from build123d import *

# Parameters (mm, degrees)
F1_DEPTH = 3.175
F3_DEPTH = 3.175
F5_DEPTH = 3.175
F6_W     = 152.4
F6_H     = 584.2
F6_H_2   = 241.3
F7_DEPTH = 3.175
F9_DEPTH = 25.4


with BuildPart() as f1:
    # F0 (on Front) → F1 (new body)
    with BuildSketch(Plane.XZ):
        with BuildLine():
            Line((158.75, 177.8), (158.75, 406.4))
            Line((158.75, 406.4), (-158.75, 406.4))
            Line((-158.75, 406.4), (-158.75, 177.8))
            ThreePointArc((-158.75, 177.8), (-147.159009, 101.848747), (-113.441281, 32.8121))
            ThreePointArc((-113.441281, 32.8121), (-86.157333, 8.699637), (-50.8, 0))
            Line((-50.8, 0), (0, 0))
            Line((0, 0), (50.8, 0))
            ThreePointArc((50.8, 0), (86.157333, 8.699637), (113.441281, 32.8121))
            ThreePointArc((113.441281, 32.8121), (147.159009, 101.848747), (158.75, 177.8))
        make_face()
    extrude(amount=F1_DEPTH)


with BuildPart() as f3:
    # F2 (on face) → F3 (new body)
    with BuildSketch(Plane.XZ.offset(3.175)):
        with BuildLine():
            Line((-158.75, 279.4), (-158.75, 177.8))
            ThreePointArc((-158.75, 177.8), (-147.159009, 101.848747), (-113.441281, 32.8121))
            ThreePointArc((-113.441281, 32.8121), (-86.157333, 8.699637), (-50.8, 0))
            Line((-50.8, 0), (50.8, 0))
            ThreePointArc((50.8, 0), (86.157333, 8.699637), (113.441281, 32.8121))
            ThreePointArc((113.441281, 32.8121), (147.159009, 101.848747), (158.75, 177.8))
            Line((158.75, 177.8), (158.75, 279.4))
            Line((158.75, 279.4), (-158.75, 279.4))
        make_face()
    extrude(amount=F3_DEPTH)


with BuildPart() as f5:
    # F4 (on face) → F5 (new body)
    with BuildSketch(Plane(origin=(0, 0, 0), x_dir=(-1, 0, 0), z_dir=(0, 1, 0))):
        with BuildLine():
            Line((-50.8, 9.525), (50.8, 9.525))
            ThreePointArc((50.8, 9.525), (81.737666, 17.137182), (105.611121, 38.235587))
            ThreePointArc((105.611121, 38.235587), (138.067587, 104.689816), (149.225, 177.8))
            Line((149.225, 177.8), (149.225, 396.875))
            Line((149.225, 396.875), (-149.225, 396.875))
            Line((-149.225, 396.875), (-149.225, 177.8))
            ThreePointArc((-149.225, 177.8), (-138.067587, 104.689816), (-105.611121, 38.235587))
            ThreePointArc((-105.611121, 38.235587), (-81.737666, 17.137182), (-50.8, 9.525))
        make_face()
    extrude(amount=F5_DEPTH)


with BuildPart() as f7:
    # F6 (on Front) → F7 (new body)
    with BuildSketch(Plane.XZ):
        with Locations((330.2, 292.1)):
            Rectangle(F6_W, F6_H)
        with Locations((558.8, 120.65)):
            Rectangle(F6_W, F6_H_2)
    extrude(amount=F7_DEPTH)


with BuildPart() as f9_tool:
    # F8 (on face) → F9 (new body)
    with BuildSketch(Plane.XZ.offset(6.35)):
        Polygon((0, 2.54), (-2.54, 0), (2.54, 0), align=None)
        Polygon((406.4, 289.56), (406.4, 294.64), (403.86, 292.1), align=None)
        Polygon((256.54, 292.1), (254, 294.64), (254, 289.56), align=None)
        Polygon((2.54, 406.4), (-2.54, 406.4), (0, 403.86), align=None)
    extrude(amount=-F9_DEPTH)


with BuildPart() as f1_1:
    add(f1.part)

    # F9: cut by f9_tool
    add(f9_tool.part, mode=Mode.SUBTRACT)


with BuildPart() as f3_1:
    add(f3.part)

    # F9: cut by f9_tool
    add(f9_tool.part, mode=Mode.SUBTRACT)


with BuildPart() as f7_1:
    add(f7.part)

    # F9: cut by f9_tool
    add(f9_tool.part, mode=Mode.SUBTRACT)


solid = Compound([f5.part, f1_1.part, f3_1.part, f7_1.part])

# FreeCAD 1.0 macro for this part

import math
import FreeCAD as App
import Part
import Sketcher
Q = App.Units.Quantity


def add_polygon(sketch, points):
    """Adds a closed chain of lines whose ends are joined by coincident constraints."""
    first, n = sketch.GeometryCount, len(points)
    for a, b in zip(points, points[1:] + points[:1]):
        sketch.addGeometry(Part.LineSegment(App.Vector(*a, 0), App.Vector(*b, 0)), False)
    for i in range(n):
        sketch.addConstraint(Sketcher.Constraint("Coincident", first + i, 2, first + (i + 1) % n, 1))

doc = App.newDocument("Part")
body = doc.addObject("PartDesign::Body", "Body")

# Sketch on XZ plane
sketch1 = doc.addObject("Sketcher::SketchObject", "Sketch")
body.addObject(sketch1)
sketch1.AttachmentSupport = (doc.XZ_Plane, [""])
sketch1.MapMode = "FlatFace"
sketch1.addGeometry(Part.LineSegment(App.Vector(159, 178, 0), App.Vector(159, 406, 0)), False)
sketch1.addGeometry(Part.LineSegment(App.Vector(159, 406, 0), App.Vector(-159, 406, 0)), False)
sketch1.addGeometry(Part.LineSegment(App.Vector(-159, 406, 0), App.Vector(-159, 178, 0)), False)
sketch1.addGeometry(Part.ArcOfCircle(Part.Circle(App.Vector(96, 178, 0), App.Vector(0, 0, 1), 255), math.radians(-180), math.radians(-145)), False)
sketch1.addGeometry(Part.ArcOfCircle(Part.Circle(App.Vector(-51, 76, 0), App.Vector(0, 0, 1), 76), math.radians(-145), math.radians(-90)), False)
sketch1.addGeometry(Part.LineSegment(App.Vector(-51, 0, 0), App.Vector(51, 0, 0)), False)
sketch1.addGeometry(Part.ArcOfCircle(Part.Circle(App.Vector(51, 76, 0), App.Vector(0, 0, 1), 76), math.radians(-90), math.radians(-35)), False)
sketch1.addGeometry(Part.ArcOfCircle(Part.Circle(App.Vector(-96, 178, 0), App.Vector(0, 0, 1), 255), math.radians(-35), math.radians(0)), False)
sketch1.addConstraint(Sketcher.Constraint("Coincident", 0, 2, 1, 1))
sketch1.addConstraint(Sketcher.Constraint("Coincident", 1, 2, 2, 1))
sketch1.addConstraint(Sketcher.Constraint("Tangent", 2, 2, 3, 1))
sketch1.addConstraint(Sketcher.Constraint("Tangent", 3, 2, 4, 1))
sketch1.addConstraint(Sketcher.Constraint("Tangent", 4, 2, 5, 1))
sketch1.addConstraint(Sketcher.Constraint("Tangent", 5, 2, 6, 1))
sketch1.addConstraint(Sketcher.Constraint("Tangent", 6, 2, 7, 1))
sketch1.addConstraint(Sketcher.Constraint("Tangent", 7, 2, 0, 1))
sketch1.addConstraint(Sketcher.Constraint("Vertical", 0))
sketch1.addConstraint(Sketcher.Constraint("Horizontal", 1))
sketch1.addConstraint(Sketcher.Constraint("Vertical", 2))
sketch1.addConstraint(Sketcher.Constraint("Horizontal", 5))
sketch1.addConstraint(Sketcher.Constraint("Equal", 4, 6))
sketch1.addConstraint(Sketcher.Constraint("Equal", 3, 7))
sketch1.addConstraint(Sketcher.Constraint("Symmetric", 4, 2, 5, 2, -1, 1))
sketch1.addConstraint(Sketcher.Constraint("Horizontal", 3, 3, 7, 3))
sketch1.addConstraint(Sketcher.Constraint("Radius", 4, Q("2.9999999 in")))
sketch1.addConstraint(Sketcher.Constraint("DistanceX", 5, 1, 5, 2, Q("4 in")))
sketch1.addConstraint(Sketcher.Constraint("DistanceY", 0, 1, 0, 2, Q("9 in")))
sketch1.addConstraint(Sketcher.Constraint("DistanceX", 1, 2, 1, 1, Q("12.5 in")))
sketch1.addConstraint(Sketcher.Constraint("DistanceY", -1, 1, 3, 3, Q("7 in")))
pad1 = doc.addObject("PartDesign::Pad", "Pad")
body.addObject(pad1)
pad1.Profile = sketch1
pad1.Length = Q("0.125 in")
body2 = doc.addObject("PartDesign::Body", "Body001")

# Sketch on XZ plane
sketch2 = doc.addObject("Sketcher::SketchObject", "Sketch001")
body2.addObject(sketch2)
sketch2.AttachmentSupport = (doc.getObject("XZ_Plane001"), [""])
sketch2.MapMode = "FlatFace"
sketch2.AttachmentOffset = App.Placement(App.Vector(0, 0, 0.125 * 25.4), App.Rotation())
sketch2.addGeometry(Part.LineSegment(App.Vector(-159, 279, 0), App.Vector(-159, 178, 0)), False)
sketch2.addGeometry(Part.ArcOfCircle(Part.Circle(App.Vector(96, 178, 0), App.Vector(0, 0, 1), 255), math.radians(-180), math.radians(-145)), False)
sketch2.addGeometry(Part.ArcOfCircle(Part.Circle(App.Vector(-51, 76, 0), App.Vector(0, 0, 1), 76), math.radians(-145), math.radians(-90)), False)
sketch2.addGeometry(Part.LineSegment(App.Vector(-51, 0, 0), App.Vector(51, 0, 0)), False)
sketch2.addGeometry(Part.ArcOfCircle(Part.Circle(App.Vector(51, 76, 0), App.Vector(0, 0, 1), 76), math.radians(-90), math.radians(-35)), False)
sketch2.addGeometry(Part.ArcOfCircle(Part.Circle(App.Vector(-96, 178, 0), App.Vector(0, 0, 1), 255), math.radians(-35), math.radians(0)), False)
sketch2.addGeometry(Part.LineSegment(App.Vector(159, 178, 0), App.Vector(159, 279, 0)), False)
sketch2.addGeometry(Part.LineSegment(App.Vector(159, 279, 0), App.Vector(-159, 279, 0)), False)
sketch2.addConstraint(Sketcher.Constraint("Tangent", 0, 2, 1, 1))
sketch2.addConstraint(Sketcher.Constraint("Tangent", 1, 2, 2, 1))
sketch2.addConstraint(Sketcher.Constraint("Tangent", 2, 2, 3, 1))
sketch2.addConstraint(Sketcher.Constraint("Tangent", 3, 2, 4, 1))
sketch2.addConstraint(Sketcher.Constraint("Tangent", 4, 2, 5, 1))
sketch2.addConstraint(Sketcher.Constraint("Tangent", 5, 2, 6, 1))
sketch2.addConstraint(Sketcher.Constraint("Coincident", 6, 2, 7, 1))
sketch2.addConstraint(Sketcher.Constraint("Coincident", 7, 2, 0, 1))
sketch2.addConstraint(Sketcher.Constraint("Vertical", 0))
sketch2.addConstraint(Sketcher.Constraint("Horizontal", 3))
sketch2.addConstraint(Sketcher.Constraint("Vertical", 6))
sketch2.addConstraint(Sketcher.Constraint("Horizontal", 7))
sketch2.addConstraint(Sketcher.Constraint("Equal", 2, 4))
sketch2.addConstraint(Sketcher.Constraint("Equal", 1, 5))
sketch2.addConstraint(Sketcher.Constraint("Symmetric", 2, 2, 3, 2, -1, 1))
sketch2.addConstraint(Sketcher.Constraint("Horizontal", 1, 3, 5, 3))
sketch2.addConstraint(Sketcher.Constraint("Equal", 3, 0))
sketch2.addConstraint(Sketcher.Constraint("Radius", 2, Q("2.9999999 in")))
sketch2.addConstraint(Sketcher.Constraint("DistanceX", 3, 1, 3, 2, Q("4 in")))
sketch2.addConstraint(Sketcher.Constraint("DistanceX", 7, 2, 7, 1, Q("12.5 in")))
sketch2.addConstraint(Sketcher.Constraint("DistanceY", -1, 1, 1, 3, Q("7 in")))
pad2 = doc.addObject("PartDesign::Pad", "Pad001")
body2.addObject(pad2)
pad2.Profile = sketch2
pad2.Length = Q("0.125 in")
body3 = doc.addObject("PartDesign::Body", "Body002")

# Sketch on XZ plane
sketch3 = doc.addObject("Sketcher::SketchObject", "Sketch002")
body3.addObject(sketch3)
sketch3.AttachmentSupport = (doc.getObject("XZ_Plane002"), [""])
sketch3.MapMode = "FlatFace"
sketch3.addGeometry(Part.LineSegment(App.Vector(51, 10, 0), App.Vector(-51, 10, 0)), False)
sketch3.addGeometry(Part.ArcOfCircle(Part.Circle(App.Vector(-51, 76, 0), App.Vector(0, 0, 1), 67), math.radians(-145), math.radians(-90)), False)
sketch3.addGeometry(Part.ArcOfCircle(Part.Circle(App.Vector(96, 178, 0), App.Vector(0, 0, 1), 245), math.radians(-180), math.radians(-145)), False)
sketch3.addGeometry(Part.LineSegment(App.Vector(-149, 178, 0), App.Vector(-149, 397, 0)), False)
sketch3.addGeometry(Part.LineSegment(App.Vector(-149, 397, 0), App.Vector(149, 397, 0)), False)
sketch3.addGeometry(Part.LineSegment(App.Vector(149, 397, 0), App.Vector(149, 178, 0)), False)
sketch3.addGeometry(Part.ArcOfCircle(Part.Circle(App.Vector(-96, 178, 0), App.Vector(0, 0, 1), 245), math.radians(-35), math.radians(0)), False)
sketch3.addGeometry(Part.ArcOfCircle(Part.Circle(App.Vector(51, 76, 0), App.Vector(0, 0, 1), 67), math.radians(-90), math.radians(-35)), False)
sketch3.addConstraint(Sketcher.Constraint("Tangent", 0, 2, 1, 2))
sketch3.addConstraint(Sketcher.Constraint("Tangent", 1, 1, 2, 2))
sketch3.addConstraint(Sketcher.Constraint("Tangent", 2, 1, 3, 1))
sketch3.addConstraint(Sketcher.Constraint("Coincident", 3, 2, 4, 1))
sketch3.addConstraint(Sketcher.Constraint("Coincident", 4, 2, 5, 1))
sketch3.addConstraint(Sketcher.Constraint("Tangent", 5, 2, 6, 2))
sketch3.addConstraint(Sketcher.Constraint("Tangent", 6, 1, 7, 2))
sketch3.addConstraint(Sketcher.Constraint("Tangent", 7, 1, 0, 1))
sketch3.addConstraint(Sketcher.Constraint("Horizontal", 0))
sketch3.addConstraint(Sketcher.Constraint("Vertical", 3))
sketch3.addConstraint(Sketcher.Constraint("Horizontal", 4))
sketch3.addConstraint(Sketcher.Constraint("Vertical", 5))
sketch3.addConstraint(Sketcher.Constraint("Equal", 2, 6))
sketch3.addConstraint(Sketcher.Constraint("Equal", 1, 7))
sketch3.addConstraint(Sketcher.Constraint("Symmetric", 2, 3, 6, 3, -2))
sketch3.addConstraint(Sketcher.Constraint("DistanceX", 0, 2, 0, 1, Q("4 in")))
sketch3.addConstraint(Sketcher.Constraint("DistanceY", -1, 1, 1, 3, Q("3 in")))
sketch3.addConstraint(Sketcher.Constraint("DistanceY", -1, 1, 2, 3, Q("7.0000001 in")))
sketch3.addConstraint(Sketcher.Constraint("Radius", 1, Q("2.625 in")))
sketch3.addConstraint(Sketcher.Constraint("DistanceX", 4, 1, 4, 2, Q("11.75 in")))
sketch3.addConstraint(Sketcher.Constraint("DistanceY", 3, 1, 3, 2, Q("8.625 in")))
pad3 = doc.addObject("PartDesign::Pad", "Pad002")
body3.addObject(pad3)
pad3.Profile = sketch3
pad3.Length = Q("0.125 in")
pad3.Reversed = True
body4 = doc.addObject("PartDesign::Body", "Body003")
body4.AllowCompound = True

# Sketch on XZ plane
sketch4 = doc.addObject("Sketcher::SketchObject", "Sketch003")
body4.addObject(sketch4)
sketch4.AttachmentSupport = (doc.getObject("XZ_Plane003"), [""])
sketch4.MapMode = "FlatFace"
add_polygon(sketch4, [(254, 584), (254, 0), (406, 0), (406, 584)])  # lines 0-3
add_polygon(sketch4, [(483, 241), (483, 0), (635, 0), (635, 241)])  # lines 4-7
sketch4.addConstraint(Sketcher.Constraint("Vertical", 0))
sketch4.addConstraint(Sketcher.Constraint("Horizontal", 1))
sketch4.addConstraint(Sketcher.Constraint("Vertical", 2))
sketch4.addConstraint(Sketcher.Constraint("Horizontal", 3))
sketch4.addConstraint(Sketcher.Constraint("Vertical", 4))
sketch4.addConstraint(Sketcher.Constraint("Horizontal", 5))
sketch4.addConstraint(Sketcher.Constraint("Vertical", 6))
sketch4.addConstraint(Sketcher.Constraint("Horizontal", 7))
sketch4.addConstraint(Sketcher.Constraint("PointOnObject", 0, 2, -1))
sketch4.addConstraint(Sketcher.Constraint("PointOnObject", 4, 2, -1))
sketch4.addConstraint(Sketcher.Constraint("Equal", 3, 5))
sketch4.addConstraint(Sketcher.Constraint("DistanceX", 1, 1, 1, 2, Q("6 in")))
sketch4.addConstraint(Sketcher.Constraint("DistanceY", 0, 2, 0, 1, Q("23 in")))
sketch4.addConstraint(Sketcher.Constraint("DistanceY", 4, 2, 4, 1, Q("9.5 in")))
sketch4.addConstraint(Sketcher.Constraint("DistanceX", -1, 1, 0, 2, Q("10 in")))
sketch4.addConstraint(Sketcher.Constraint("DistanceX", -1, 1, 4, 2, Q("19 in")))
pad4 = doc.addObject("PartDesign::Pad", "Pad003")
body4.addObject(pad4)
pad4.Profile = sketch4
pad4.Length = Q("0.125 in")
body5 = doc.addObject("PartDesign::Body", "Body004")
body5.AllowCompound = True

# Sketch on XZ plane
sketch5 = doc.addObject("Sketcher::SketchObject", "Sketch004")
body5.addObject(sketch5)
sketch5.AttachmentSupport = (doc.getObject("XZ_Plane004"), [""])
sketch5.MapMode = "FlatFace"
sketch5.AttachmentOffset = App.Placement(App.Vector(0, 0, 0.25 * 25.4), App.Rotation())
add_polygon(sketch5, [(0, 2.5), (-2.5, 0), (2.5, 0)])  # lines 0-2
add_polygon(sketch5, [(406.4, 289.6), (406.4, 294.6), (403.9, 292.1)])  # lines 3-5
add_polygon(sketch5, [(256.5, 292.1), (254, 294.6), (254, 289.6)])  # lines 6-8
add_polygon(sketch5, [(2.5, 406.4), (-2.5, 406.4), (0, 403.9)])  # lines 9-11
sketch5.addConstraint(Sketcher.Constraint("Horizontal", 1))
sketch5.addConstraint(Sketcher.Constraint("Vertical", 3))
sketch5.addConstraint(Sketcher.Constraint("Vertical", 7))
sketch5.addConstraint(Sketcher.Constraint("Horizontal", 9))
sketch5.addConstraint(Sketcher.Constraint("Symmetric", 0, 2, 1, 2, -1, 1))
sketch5.addConstraint(Sketcher.Constraint("PointOnObject", 2, 2, -2))
sketch5.addConstraint(Sketcher.Constraint("PointOnObject", 10, 2, -2))
sketch5.addConstraint(Sketcher.Constraint("Perpendicular", 0, 2))
sketch5.addConstraint(Sketcher.Constraint("Perpendicular", 2, 4))
sketch5.addConstraint(Sketcher.Constraint("Perpendicular", 4, 5))
sketch5.addConstraint(Sketcher.Constraint("Parallel", 5, 6))
sketch5.addConstraint(Sketcher.Constraint("Perpendicular", 6, 8))
sketch5.addConstraint(Sketcher.Constraint("Perpendicular", 8, 10))
sketch5.addConstraint(Sketcher.Constraint("Perpendicular", 10, 11))
sketch5.addConstraint(Sketcher.Constraint("Horizontal", 3, 2, 6, 2))
sketch5.addConstraint(Sketcher.Constraint("Horizontal", 5, 2, 7, 2))
sketch5.addConstraint(Sketcher.Constraint("Vertical", 0, 2, 9, 2))
sketch5.addConstraint(Sketcher.Constraint("Equal", 9, 3))
sketch5.addConstraint(Sketcher.Constraint("DistanceX", 1, 1, 1, 2, Q("0.2 in")))
sketch5.addConstraint(Sketcher.Constraint("DistanceX", -1, 1, 3, 2, Q("16 in")))
sketch5.addConstraint(Sketcher.Constraint("DistanceX", -1, 1, 6, 2, Q("10 in")))
sketch5.addConstraint(Sketcher.Constraint("DistanceY", -1, 1, 9, 2, Q("16 in")))
sketch5.addConstraint(Sketcher.Constraint("DistanceY", -1, 1, 3, 2, Q("11.6 in")))
pad5 = doc.addObject("PartDesign::Pad", "Pad004")
body5.addObject(pad5)
pad5.Profile = sketch5
pad5.Length = Q("1 in")
pad5.Reversed = True
doc.recompute()

body6 = doc.addObject("PartDesign::Body", "Body005")
body6.BaseFeature = body5
boolean = doc.addObject("PartDesign::Boolean", "Boolean")
body.addObject(boolean)
boolean.Type = "Cut"
boolean.addObjects([body6])
doc.recompute()

body7 = doc.addObject("PartDesign::Body", "Body006")
body7.BaseFeature = body5
boolean2 = doc.addObject("PartDesign::Boolean", "Boolean001")
body2.addObject(boolean2)
boolean2.Type = "Cut"
boolean2.addObjects([body7])
doc.recompute()
body4.AllowCompound = True
doc.recompute()

boolean3 = doc.addObject("PartDesign::Boolean", "Boolean002")
body4.addObject(boolean3)
boolean3.Type = "Cut"
boolean3.addObjects([body5])

doc.recompute()
